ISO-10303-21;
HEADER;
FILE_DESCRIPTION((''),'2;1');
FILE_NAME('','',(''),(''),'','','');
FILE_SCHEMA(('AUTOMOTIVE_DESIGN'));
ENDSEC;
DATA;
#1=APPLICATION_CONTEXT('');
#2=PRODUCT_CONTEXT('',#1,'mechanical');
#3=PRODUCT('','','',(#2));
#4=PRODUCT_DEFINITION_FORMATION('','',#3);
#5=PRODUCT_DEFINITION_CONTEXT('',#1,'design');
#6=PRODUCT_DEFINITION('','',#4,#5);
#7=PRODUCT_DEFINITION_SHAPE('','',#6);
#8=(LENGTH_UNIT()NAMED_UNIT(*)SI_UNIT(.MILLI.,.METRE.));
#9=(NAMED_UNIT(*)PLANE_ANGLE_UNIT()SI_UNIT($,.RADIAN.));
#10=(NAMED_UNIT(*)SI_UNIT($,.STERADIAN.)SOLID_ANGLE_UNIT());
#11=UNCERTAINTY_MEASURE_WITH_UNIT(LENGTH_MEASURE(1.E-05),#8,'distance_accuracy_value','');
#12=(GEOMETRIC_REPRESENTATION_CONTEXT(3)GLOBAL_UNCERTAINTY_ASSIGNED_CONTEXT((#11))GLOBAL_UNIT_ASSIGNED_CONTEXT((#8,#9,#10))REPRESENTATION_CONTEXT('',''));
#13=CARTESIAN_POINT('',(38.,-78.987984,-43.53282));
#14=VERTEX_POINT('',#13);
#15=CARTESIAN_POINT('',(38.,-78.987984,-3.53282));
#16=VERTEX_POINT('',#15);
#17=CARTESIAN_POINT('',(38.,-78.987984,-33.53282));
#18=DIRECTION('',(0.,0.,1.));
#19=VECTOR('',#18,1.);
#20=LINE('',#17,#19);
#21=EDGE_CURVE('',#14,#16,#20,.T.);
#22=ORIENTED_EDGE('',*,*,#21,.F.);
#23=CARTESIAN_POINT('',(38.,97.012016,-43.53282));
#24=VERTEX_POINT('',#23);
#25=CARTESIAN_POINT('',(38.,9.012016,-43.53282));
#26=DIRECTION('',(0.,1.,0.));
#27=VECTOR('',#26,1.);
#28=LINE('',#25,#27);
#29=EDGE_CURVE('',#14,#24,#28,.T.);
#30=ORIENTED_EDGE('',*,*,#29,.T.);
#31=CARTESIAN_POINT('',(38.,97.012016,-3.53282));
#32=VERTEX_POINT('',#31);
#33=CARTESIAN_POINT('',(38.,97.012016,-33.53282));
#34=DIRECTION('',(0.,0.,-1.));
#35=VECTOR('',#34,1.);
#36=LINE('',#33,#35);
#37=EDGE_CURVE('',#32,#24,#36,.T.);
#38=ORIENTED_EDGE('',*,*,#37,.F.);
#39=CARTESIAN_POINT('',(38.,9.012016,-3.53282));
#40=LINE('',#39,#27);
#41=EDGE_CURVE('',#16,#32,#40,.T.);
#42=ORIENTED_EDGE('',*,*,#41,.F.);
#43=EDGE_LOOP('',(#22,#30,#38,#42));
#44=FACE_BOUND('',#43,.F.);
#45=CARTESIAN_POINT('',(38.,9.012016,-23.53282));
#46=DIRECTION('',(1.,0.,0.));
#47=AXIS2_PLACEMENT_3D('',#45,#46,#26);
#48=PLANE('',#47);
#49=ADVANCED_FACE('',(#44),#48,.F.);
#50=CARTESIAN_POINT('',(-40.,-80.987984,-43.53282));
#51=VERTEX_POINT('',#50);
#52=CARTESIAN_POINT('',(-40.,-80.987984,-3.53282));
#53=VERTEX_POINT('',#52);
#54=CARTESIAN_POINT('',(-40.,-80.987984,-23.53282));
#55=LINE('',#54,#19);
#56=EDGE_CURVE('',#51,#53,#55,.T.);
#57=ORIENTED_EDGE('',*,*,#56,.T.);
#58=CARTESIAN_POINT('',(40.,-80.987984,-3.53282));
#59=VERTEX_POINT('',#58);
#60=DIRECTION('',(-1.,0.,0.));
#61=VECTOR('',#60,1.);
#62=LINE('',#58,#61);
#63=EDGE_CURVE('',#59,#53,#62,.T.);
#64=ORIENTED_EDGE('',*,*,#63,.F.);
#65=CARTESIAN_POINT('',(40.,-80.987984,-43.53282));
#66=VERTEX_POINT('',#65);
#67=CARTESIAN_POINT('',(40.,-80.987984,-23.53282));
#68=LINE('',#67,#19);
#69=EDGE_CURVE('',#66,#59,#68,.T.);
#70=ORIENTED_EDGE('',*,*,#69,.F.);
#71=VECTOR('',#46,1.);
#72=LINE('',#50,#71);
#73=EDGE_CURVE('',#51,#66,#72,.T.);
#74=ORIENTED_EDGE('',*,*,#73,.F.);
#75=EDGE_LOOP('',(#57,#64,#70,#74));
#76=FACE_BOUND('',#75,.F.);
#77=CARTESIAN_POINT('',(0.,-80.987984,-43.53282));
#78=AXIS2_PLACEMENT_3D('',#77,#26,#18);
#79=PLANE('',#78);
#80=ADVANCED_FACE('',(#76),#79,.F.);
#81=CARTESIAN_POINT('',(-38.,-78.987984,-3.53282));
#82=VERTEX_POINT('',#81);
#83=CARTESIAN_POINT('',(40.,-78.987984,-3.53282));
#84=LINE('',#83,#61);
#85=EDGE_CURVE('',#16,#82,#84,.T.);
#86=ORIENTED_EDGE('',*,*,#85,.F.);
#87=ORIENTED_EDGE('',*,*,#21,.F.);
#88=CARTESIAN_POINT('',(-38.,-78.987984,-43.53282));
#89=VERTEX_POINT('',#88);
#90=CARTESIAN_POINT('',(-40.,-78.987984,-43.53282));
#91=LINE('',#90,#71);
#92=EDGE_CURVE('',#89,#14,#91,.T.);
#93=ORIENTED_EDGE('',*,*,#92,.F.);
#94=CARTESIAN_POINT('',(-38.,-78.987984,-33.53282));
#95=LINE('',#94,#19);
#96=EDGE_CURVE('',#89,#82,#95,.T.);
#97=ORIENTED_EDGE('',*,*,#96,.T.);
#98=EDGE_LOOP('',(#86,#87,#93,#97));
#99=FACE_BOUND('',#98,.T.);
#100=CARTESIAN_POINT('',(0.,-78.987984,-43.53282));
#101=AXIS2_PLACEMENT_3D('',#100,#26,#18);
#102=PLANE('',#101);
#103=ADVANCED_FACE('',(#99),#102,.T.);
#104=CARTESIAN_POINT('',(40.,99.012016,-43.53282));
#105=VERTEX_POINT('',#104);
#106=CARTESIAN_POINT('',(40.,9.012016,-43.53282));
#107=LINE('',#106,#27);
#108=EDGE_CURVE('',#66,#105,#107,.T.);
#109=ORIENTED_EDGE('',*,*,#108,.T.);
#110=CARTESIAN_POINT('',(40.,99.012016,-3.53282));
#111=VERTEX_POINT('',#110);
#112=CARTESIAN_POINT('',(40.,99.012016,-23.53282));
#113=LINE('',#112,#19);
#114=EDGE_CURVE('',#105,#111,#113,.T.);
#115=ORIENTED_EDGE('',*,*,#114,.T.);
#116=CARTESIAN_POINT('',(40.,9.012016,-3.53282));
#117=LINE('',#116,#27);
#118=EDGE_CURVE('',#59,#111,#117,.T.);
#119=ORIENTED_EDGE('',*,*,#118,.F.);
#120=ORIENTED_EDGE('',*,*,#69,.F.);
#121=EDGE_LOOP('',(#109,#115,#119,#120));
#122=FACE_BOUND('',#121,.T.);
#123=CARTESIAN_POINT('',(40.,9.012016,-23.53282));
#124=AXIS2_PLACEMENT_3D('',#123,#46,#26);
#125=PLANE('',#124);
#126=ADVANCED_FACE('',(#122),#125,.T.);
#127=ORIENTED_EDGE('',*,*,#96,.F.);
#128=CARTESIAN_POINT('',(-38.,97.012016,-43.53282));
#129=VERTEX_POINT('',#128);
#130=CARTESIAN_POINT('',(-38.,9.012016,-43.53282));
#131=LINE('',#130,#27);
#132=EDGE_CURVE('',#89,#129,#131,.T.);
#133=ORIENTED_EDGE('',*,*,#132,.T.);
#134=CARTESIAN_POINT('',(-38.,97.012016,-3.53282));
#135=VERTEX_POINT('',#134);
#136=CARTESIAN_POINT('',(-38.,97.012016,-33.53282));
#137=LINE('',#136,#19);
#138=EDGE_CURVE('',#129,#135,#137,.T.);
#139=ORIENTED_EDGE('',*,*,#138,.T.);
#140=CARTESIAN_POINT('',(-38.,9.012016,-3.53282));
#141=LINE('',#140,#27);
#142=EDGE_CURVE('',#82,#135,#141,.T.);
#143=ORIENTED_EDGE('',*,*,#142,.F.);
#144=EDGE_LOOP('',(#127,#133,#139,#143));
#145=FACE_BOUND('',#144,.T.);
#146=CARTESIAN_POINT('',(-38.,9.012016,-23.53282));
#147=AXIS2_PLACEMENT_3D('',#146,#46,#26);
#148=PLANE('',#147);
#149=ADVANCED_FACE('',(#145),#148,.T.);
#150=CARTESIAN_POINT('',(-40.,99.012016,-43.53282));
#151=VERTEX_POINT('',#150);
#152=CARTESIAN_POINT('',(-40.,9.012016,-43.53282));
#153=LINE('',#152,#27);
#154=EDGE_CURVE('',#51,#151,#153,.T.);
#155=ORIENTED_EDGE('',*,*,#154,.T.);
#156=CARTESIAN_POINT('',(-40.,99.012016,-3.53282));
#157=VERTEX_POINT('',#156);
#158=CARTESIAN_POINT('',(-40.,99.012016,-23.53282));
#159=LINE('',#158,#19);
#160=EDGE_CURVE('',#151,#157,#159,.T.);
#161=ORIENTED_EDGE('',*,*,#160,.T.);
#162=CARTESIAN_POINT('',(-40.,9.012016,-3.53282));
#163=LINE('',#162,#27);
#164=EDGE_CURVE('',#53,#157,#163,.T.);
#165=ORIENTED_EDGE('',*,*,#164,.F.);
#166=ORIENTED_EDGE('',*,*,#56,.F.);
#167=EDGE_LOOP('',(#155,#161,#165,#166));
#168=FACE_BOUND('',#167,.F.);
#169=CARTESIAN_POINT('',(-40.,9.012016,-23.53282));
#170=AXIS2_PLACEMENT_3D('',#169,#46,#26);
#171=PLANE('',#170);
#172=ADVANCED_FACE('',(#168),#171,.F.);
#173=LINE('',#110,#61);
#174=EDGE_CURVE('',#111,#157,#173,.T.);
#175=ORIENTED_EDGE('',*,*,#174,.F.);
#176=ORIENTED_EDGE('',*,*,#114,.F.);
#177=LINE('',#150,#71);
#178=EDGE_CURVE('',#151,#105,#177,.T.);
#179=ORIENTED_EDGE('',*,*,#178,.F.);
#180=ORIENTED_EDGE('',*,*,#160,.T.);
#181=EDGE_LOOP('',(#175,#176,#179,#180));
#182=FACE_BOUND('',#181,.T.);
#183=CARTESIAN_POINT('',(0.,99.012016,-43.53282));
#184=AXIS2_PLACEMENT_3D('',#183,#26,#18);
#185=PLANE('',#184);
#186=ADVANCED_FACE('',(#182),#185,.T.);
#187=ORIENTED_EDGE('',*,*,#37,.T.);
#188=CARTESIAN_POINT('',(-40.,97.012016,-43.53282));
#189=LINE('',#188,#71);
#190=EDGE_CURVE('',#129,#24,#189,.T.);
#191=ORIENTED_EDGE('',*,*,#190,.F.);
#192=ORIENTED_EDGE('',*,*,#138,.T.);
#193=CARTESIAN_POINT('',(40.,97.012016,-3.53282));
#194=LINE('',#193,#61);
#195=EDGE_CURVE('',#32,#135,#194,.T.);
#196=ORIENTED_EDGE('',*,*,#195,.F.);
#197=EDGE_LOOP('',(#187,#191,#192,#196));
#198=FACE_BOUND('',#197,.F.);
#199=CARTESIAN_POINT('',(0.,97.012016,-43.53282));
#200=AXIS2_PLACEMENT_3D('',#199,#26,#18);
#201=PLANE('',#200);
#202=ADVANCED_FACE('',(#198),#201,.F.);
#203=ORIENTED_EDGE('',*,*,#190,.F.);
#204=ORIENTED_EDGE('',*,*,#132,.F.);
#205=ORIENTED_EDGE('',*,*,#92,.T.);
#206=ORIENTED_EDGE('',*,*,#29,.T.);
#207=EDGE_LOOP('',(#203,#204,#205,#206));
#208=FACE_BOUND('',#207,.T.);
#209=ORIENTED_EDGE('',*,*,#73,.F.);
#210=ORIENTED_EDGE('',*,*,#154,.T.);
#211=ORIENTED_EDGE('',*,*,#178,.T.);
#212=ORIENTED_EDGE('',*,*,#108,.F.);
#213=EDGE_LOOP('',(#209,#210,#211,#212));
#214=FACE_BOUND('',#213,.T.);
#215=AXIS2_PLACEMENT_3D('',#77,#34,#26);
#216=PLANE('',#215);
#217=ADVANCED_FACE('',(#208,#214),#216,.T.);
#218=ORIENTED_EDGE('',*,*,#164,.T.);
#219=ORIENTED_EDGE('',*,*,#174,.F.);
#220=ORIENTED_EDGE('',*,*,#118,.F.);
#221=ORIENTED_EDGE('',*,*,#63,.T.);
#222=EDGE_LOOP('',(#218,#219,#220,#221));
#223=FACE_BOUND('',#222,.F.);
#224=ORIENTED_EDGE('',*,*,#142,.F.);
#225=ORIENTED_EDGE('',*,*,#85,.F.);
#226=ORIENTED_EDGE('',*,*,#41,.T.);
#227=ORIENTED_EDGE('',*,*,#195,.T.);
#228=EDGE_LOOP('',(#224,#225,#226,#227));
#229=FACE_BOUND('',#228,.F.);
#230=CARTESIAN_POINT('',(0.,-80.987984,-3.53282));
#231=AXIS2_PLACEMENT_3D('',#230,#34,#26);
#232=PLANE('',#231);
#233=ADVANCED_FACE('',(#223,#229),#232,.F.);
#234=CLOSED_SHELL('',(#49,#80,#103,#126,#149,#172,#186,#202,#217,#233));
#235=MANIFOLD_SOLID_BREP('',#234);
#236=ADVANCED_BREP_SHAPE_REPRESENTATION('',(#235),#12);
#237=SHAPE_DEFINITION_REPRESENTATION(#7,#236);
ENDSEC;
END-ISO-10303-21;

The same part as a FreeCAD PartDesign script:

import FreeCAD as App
import Part
import Sketcher
from FreeCAD import Vector
Q = App.Units.Quantity


def faces_at(feature, points):
    """Names of the faces that lie closest to the given points."""
    faces = feature.Shape.Faces
    near = lambda p: min(range(len(faces)), key=lambda i: faces[i].distToShape(Part.Vertex(*p))[0])
    return sorted({f"Face{near(p) + 1}" for p in points})

doc = App.newDocument("Part")
body = doc.addObject("PartDesign::Body", "Body")

sketch1 = body.newObject("Sketcher::SketchObject", "Sketch")
sketch1.AttachmentSupport = (doc.getObject("YZ_Plane"), [""])
sketch1.MapMode = "FlatFace"
sketch1.addGeometry(Part.LineSegment(Vector(-80.987984, -3.53282, 0), Vector(-80.987984, -43.53282, 0)), False)
sketch1.addGeometry(Part.LineSegment(Vector(-80.987984, -43.53282, 0), Vector(99.012016, -43.53282, 0)), False)
sketch1.addGeometry(Part.LineSegment(Vector(99.012016, -43.53282, 0), Vector(99.012016, -3.53282, 0)), False)
sketch1.addGeometry(Part.LineSegment(Vector(99.012016, -3.53282, 0), Vector(-80.987984, -3.53282, 0)), False)
sketch1.addConstraint(Sketcher.Constraint("Coincident", 0, 2, 1, 1))
sketch1.addConstraint(Sketcher.Constraint("Coincident", 1, 2, 2, 1))
sketch1.addConstraint(Sketcher.Constraint("Coincident", 2, 2, 3, 1))
sketch1.addConstraint(Sketcher.Constraint("Coincident", 3, 2, 0, 1))
sketch1.addConstraint(Sketcher.Constraint("Vertical", 0))
sketch1.addConstraint(Sketcher.Constraint("Horizontal", 1))
sketch1.addConstraint(Sketcher.Constraint("Vertical", 2))
sketch1.addConstraint(Sketcher.Constraint("Horizontal", 3))
sketch1.addConstraint(Sketcher.Constraint("DistanceX", 1, 1, 1, 2, Q("180 mm")))
sketch1.addConstraint(Sketcher.Constraint("DistanceY", 0, 2, 0, 1, Q("40 mm")))
sketch1.addConstraint(Sketcher.Constraint("DistanceY", 0, 2, -1, 1, Q("43.53282 mm")))
sketch1.addConstraint(Sketcher.Constraint("DistanceX", 0, 2, -1, 1, Q("80.987984 mm")))
pad1 = body.newObject("PartDesign::Pad", "Pad")
pad1.Profile = sketch1
pad1.Length = 80
pad1.Midplane = True
doc.recompute()

thickness = body.newObject("PartDesign::Thickness", "Thickness")
thickness.Base = (pad1, faces_at(pad1, [(0, 9.012, -3.533), (0, 9.012, -43.533)]))
thickness.Value = 2
thickness.Reversed = True
thickness.Join = "Arc"

doc.recompute()
